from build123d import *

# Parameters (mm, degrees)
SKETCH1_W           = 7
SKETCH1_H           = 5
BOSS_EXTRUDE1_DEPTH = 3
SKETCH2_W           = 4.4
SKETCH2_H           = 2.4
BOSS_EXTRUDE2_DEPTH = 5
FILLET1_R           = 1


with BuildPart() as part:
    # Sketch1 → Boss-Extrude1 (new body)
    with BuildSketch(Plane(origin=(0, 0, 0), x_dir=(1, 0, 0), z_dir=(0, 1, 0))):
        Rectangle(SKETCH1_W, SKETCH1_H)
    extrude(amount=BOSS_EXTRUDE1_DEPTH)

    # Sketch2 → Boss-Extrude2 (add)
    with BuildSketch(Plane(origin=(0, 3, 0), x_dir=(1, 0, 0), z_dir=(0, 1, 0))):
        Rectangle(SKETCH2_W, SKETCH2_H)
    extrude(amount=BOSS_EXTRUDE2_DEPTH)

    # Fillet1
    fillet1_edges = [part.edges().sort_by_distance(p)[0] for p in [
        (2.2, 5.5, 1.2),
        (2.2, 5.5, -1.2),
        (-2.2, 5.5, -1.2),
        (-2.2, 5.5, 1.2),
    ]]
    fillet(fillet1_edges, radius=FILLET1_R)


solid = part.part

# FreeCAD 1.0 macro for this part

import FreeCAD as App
import Part
import Sketcher

V = App.Vector
Q = App.Units.Quantity


def edges_at(feature, points):
    """Names of the edges that pass closest to the given points."""
    edges = feature.Shape.Edges
    near = lambda p: min(range(len(edges)), key=lambda i: edges[i].distToShape(Part.Vertex(*p))[0])
    return sorted({f"Edge{near(p) + 1}" for p in points})

doc = App.newDocument("Part")
body = doc.addObject("PartDesign::Body", "Body")

# Sketch on XZ plane
sketch1 = doc.addObject("Sketcher::SketchObject", "Sketch")
body.addObject(sketch1)
sketch1.AttachmentSupport = (doc.XZ_Plane, [""])
sketch1.MapMode = "FlatFace"
sketch1.addGeometry(Part.LineSegment(V(-3.5, -2.5, 0), V(-3.5, 2.5, 0)), False)
sketch1.addGeometry(Part.LineSegment(V(-3.5, 2.5, 0), V(3.5, 2.5, 0)), False)
sketch1.addGeometry(Part.LineSegment(V(3.5, 2.5, 0), V(3.5, -2.5, 0)), False)
sketch1.addGeometry(Part.LineSegment(V(3.5, -2.5, 0), V(-3.5, -2.5, 0)), False)
sketch1.addConstraint(Sketcher.Constraint("Coincident", 0, 2, 1, 1))
sketch1.addConstraint(Sketcher.Constraint("Coincident", 1, 2, 2, 1))
sketch1.addConstraint(Sketcher.Constraint("Coincident", 2, 2, 3, 1))
sketch1.addConstraint(Sketcher.Constraint("Coincident", 3, 2, 0, 1))
sketch1.addConstraint(Sketcher.Constraint("Vertical", 0))
sketch1.addConstraint(Sketcher.Constraint("Horizontal", 1))
sketch1.addConstraint(Sketcher.Constraint("Vertical", 2))
sketch1.addConstraint(Sketcher.Constraint("Horizontal", 3))
sketch1.addConstraint(Sketcher.Constraint("Symmetric", 0, 2, 2, 2, -1, 1))
sketch1.addConstraint(Sketcher.Constraint("DistanceX", 1, 1, 1, 2, Q("7 mm")))
sketch1.addConstraint(Sketcher.Constraint("DistanceY", 0, 1, 0, 2, Q("5 mm")))
pad1 = doc.addObject("PartDesign::Pad", "Pad")
body.addObject(pad1)
pad1.Profile = sketch1
pad1.Length = 3
pad1.Reversed = True

# Sketch on XZ plane
sketch2 = doc.addObject("Sketcher::SketchObject", "Sketch001")
body.addObject(sketch2)
sketch2.AttachmentSupport = (doc.XZ_Plane, [""])
sketch2.MapMode = "FlatFace"
sketch2.AttachmentOffset = App.Placement(V(0, 0, -3), App.Rotation())
sketch2.addGeometry(Part.LineSegment(V(-2.2, -1.2, 0), V(-2.2, 1.2, 0)), False)
sketch2.addGeometry(Part.LineSegment(V(-2.2, 1.2, 0), V(2.2, 1.2, 0)), False)
sketch2.addGeometry(Part.LineSegment(V(2.2, 1.2, 0), V(2.2, -1.2, 0)), False)
sketch2.addGeometry(Part.LineSegment(V(2.2, -1.2, 0), V(-2.2, -1.2, 0)), False)
sketch2.addConstraint(Sketcher.Constraint("Coincident", 0, 2, 1, 1))
sketch2.addConstraint(Sketcher.Constraint("Coincident", 1, 2, 2, 1))
sketch2.addConstraint(Sketcher.Constraint("Coincident", 2, 2, 3, 1))
sketch2.addConstraint(Sketcher.Constraint("Coincident", 3, 2, 0, 1))
sketch2.addConstraint(Sketcher.Constraint("Vertical", 0))
sketch2.addConstraint(Sketcher.Constraint("Horizontal", 1))
sketch2.addConstraint(Sketcher.Constraint("Vertical", 2))
sketch2.addConstraint(Sketcher.Constraint("Horizontal", 3))
sketch2.addConstraint(Sketcher.Constraint("Symmetric", 0, 2, 2, 2, -1, 1))
sketch2.addConstraint(Sketcher.Constraint("DistanceX", 1, 1, 1, 2, Q("4.4 mm")))
sketch2.addConstraint(Sketcher.Constraint("DistanceY", 0, 1, 0, 2, Q("2.4 mm")))
pad2 = doc.addObject("PartDesign::Pad", "Pad001")
body.addObject(pad2)
pad2.Profile = sketch2
pad2.Length = 5
pad2.Reversed = True
doc.recompute()

fillet = doc.addObject("PartDesign::Fillet", "Fillet")
body.addObject(fillet)
fillet.Base = (pad2, edges_at(pad2, [
    (2.2, 5.5, 1.2),
    (2.2, 5.5, -1.2),
    (-2.2, 5.5, -1.2),
    (-2.2, 5.5, 1.2),
]))
fillet.Radius = 1

doc.recompute()
